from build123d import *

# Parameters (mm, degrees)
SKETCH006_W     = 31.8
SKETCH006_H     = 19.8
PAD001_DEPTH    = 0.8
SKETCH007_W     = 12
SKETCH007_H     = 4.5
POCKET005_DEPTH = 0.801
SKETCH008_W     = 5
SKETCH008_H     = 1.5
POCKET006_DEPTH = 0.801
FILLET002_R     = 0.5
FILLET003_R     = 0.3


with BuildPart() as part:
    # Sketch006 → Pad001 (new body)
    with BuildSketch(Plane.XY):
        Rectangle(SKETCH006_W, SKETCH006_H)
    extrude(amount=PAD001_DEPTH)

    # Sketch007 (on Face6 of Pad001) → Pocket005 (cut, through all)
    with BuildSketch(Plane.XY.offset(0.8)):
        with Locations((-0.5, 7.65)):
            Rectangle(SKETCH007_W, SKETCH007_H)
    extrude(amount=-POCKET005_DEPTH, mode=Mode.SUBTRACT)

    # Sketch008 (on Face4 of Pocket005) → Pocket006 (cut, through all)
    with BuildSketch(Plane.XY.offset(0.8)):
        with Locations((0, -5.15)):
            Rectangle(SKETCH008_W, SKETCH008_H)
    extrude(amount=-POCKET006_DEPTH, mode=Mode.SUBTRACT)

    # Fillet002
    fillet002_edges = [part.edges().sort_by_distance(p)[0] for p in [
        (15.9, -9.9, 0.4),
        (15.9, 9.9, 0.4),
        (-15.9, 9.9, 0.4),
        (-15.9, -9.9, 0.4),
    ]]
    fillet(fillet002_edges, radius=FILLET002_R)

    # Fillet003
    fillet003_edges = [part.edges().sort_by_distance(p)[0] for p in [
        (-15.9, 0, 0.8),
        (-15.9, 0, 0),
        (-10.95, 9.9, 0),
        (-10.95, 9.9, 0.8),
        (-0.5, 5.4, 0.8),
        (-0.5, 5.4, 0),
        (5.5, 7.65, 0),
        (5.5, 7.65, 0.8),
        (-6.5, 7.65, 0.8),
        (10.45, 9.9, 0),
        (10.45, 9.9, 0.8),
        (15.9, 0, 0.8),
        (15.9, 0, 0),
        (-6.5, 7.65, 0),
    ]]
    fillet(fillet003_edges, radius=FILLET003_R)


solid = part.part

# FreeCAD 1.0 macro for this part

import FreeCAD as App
import Part
import Sketcher


def edges_at(feature, points):
    """Names of the edges that pass closest to the given points."""
    edges = feature.Shape.Edges
    near = lambda p: min(range(len(edges)), key=lambda i: edges[i].distToShape(Part.Vertex(*p))[0])
    return sorted({f"Edge{near(p) + 1}" for p in points})

doc = App.newDocument("Part")
body = doc.addObject("PartDesign::Body", "Body")

sketch1 = body.newObject("Sketcher::SketchObject", "Sketch")
sketch1.AttachmentSupport = (doc.getObject("XY_Plane"), [""])
sketch1.MapMode = "FlatFace"
sketch1.addGeometry([
    Part.LineSegment(App.Vector(-16, 10, 0), App.Vector(-16, -10, 0)),
    Part.LineSegment(App.Vector(-16, -10, 0), App.Vector(16, -10, 0)),
    Part.LineSegment(App.Vector(16, -10, 0), App.Vector(16, 10, 0)),
    Part.LineSegment(App.Vector(16, 10, 0), App.Vector(-16, 10, 0)),
], False)
sketch1.addConstraint([
    Sketcher.Constraint("Coincident", 0, 2, 1, 1),
    Sketcher.Constraint("Coincident", 1, 2, 2, 1),
    Sketcher.Constraint("Coincident", 2, 2, 3, 1),
    Sketcher.Constraint("Coincident", 3, 2, 0, 1),
    Sketcher.Constraint("Vertical", 0),
    Sketcher.Constraint("Horizontal", 1),
    Sketcher.Constraint("Vertical", 2),
    Sketcher.Constraint("Horizontal", 3),
    Sketcher.Constraint("Symmetric", 0, 2, 2, 2, -1, 1),
    Sketcher.Constraint("DistanceX", 1, 1, 1, 2, 31.8),
    Sketcher.Constraint("DistanceY", 0, 2, 0, 1, 19.8),
])
pad1 = body.newObject("PartDesign::Pad", "Pad")
pad1.Profile = sketch1
pad1.Length = 0.8

sketch2 = body.newObject("Sketcher::SketchObject", "Sketch001")
sketch2.AttachmentSupport = (doc.getObject("XY_Plane"), [""])
sketch2.MapMode = "FlatFace"
sketch2.AttachmentOffset = App.Placement(App.Vector(0, 0, 0.8), App.Rotation())
sketch2.addGeometry([
    Part.LineSegment(App.Vector(-6.5, 9.9, 0), App.Vector(-6.5, 5.4, 0)),
    Part.LineSegment(App.Vector(-6.5, 5.4, 0), App.Vector(5.5, 5.4, 0)),
    Part.LineSegment(App.Vector(5.5, 5.4, 0), App.Vector(5.5, 9.9, 0)),
    Part.LineSegment(App.Vector(5.5, 9.9, 0), App.Vector(-6.5, 9.9, 0)),
], False)
sketch2.addConstraint([
    Sketcher.Constraint("Coincident", 0, 2, 1, 1),
    Sketcher.Constraint("Coincident", 1, 2, 2, 1),
    Sketcher.Constraint("Coincident", 2, 2, 3, 1),
    Sketcher.Constraint("Coincident", 3, 2, 0, 1),
    Sketcher.Constraint("Vertical", 0),
    Sketcher.Constraint("Horizontal", 1),
    Sketcher.Constraint("Vertical", 2),
    Sketcher.Constraint("Horizontal", 3),
    Sketcher.Constraint("DistanceX", 1, 1, 1, 2, 12.0),
    Sketcher.Constraint("DistanceY", 0, 2, 0, 1, 4.5),
    Sketcher.Constraint("DistanceX", 0, 2, -1, 1, 6.5),
    Sketcher.Constraint("DistanceY", -1, 1, 0, 2, 5.4),
])
pocket1 = body.newObject("PartDesign::Pocket", "Pocket")
pocket1.Profile = sketch2
pocket1.Type = "ThroughAll"

sketch3 = body.newObject("Sketcher::SketchObject", "Sketch002")
sketch3.AttachmentSupport = (doc.getObject("XY_Plane"), [""])
sketch3.MapMode = "FlatFace"
sketch3.AttachmentOffset = App.Placement(App.Vector(0, 0, 0.8), App.Rotation())
sketch3.addGeometry([
    Part.LineSegment(App.Vector(-2.5, -4.4, 0), App.Vector(-2.5, -5.9, 0)),
    Part.LineSegment(App.Vector(-2.5, -5.9, 0), App.Vector(2.5, -5.9, 0)),
    Part.LineSegment(App.Vector(2.5, -5.9, 0), App.Vector(2.5, -4.4, 0)),
    Part.LineSegment(App.Vector(2.5, -4.4, 0), App.Vector(-2.5, -4.4, 0)),
], False)
sketch3.addConstraint([
    Sketcher.Constraint("Coincident", 0, 2, 1, 1),
    Sketcher.Constraint("Coincident", 1, 2, 2, 1),
    Sketcher.Constraint("Coincident", 2, 2, 3, 1),
    Sketcher.Constraint("Coincident", 3, 2, 0, 1),
    Sketcher.Constraint("Vertical", 0),
    Sketcher.Constraint("Horizontal", 1),
    Sketcher.Constraint("Vertical", 2),
    Sketcher.Constraint("Horizontal", 3),
    Sketcher.Constraint("DistanceX", 1, 1, 1, 2, 5.0),
    Sketcher.Constraint("DistanceY", 0, 2, 0, 1, 1.5),
    Sketcher.Constraint("DistanceX", 0, 2, -1, 1, 2.5),
    Sketcher.Constraint("DistanceY", 0, 2, -1, 1, 5.9),
])
pocket2 = body.newObject("PartDesign::Pocket", "Pocket001")
pocket2.Profile = sketch3
pocket2.Type = "ThroughAll"
doc.recompute()

fillet = body.newObject("PartDesign::Fillet", "Fillet")
fillet.Base = (pocket2, edges_at(pocket2, [
    (15.9, -9.9, 0.4),
    (15.9, 9.9, 0.4),
    (-15.9, 9.9, 0.4),
    (-15.9, -9.9, 0.4),
]))
fillet.Radius = 0.5
doc.recompute()

fillet2 = body.newObject("PartDesign::Fillet", "Fillet001")
fillet2.Base = (fillet, edges_at(fillet, [
    (-15.9, 0, 0.8),
    (-15.9, 0, 0),
    (-10.95, 9.9, 0),
    (-10.95, 9.9, 0.8),
    (-0.5, 5.4, 0.8),
    (-0.5, 5.4, 0),
    (5.5, 7.65, 0),
    (5.5, 7.65, 0.8),
    (-6.5, 7.65, 0.8),
    (10.45, 9.9, 0),
    (10.45, 9.9, 0.8),
    (15.9, 0, 0.8),
    (15.9, 0, 0),
    (-6.5, 7.65, 0),
]))
fillet2.Radius = 0.3

doc.recompute()
